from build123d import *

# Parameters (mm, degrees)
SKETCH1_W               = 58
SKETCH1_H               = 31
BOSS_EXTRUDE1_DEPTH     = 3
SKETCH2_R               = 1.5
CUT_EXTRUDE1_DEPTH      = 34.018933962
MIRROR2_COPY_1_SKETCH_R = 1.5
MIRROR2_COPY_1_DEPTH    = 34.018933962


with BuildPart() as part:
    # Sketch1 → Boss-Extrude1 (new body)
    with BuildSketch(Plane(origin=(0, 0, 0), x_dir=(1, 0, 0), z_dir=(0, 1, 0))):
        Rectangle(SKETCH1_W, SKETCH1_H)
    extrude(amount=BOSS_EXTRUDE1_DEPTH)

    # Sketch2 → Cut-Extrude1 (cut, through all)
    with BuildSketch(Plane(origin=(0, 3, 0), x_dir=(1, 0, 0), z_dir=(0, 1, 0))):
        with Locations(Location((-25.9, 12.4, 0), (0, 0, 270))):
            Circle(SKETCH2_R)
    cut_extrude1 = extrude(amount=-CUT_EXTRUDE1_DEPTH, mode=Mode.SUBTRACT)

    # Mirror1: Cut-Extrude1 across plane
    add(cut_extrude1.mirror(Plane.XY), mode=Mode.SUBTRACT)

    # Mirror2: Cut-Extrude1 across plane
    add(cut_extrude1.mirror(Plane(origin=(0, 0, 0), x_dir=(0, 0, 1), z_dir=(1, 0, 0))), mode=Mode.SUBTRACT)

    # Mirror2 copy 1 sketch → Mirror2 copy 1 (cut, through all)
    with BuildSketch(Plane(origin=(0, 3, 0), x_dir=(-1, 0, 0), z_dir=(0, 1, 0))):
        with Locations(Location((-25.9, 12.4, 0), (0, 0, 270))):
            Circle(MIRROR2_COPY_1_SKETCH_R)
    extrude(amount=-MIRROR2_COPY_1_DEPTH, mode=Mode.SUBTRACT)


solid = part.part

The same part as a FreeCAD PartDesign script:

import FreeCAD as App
import Part
import Sketcher

V = App.Vector

doc = App.newDocument("Part")
body = doc.addObject("PartDesign::Body", "Body")

sketch1 = body.newObject("Sketcher::SketchObject", "Sketch")
sketch1.AttachmentSupport = (doc.getObject("XZ_Plane"), [""])
sketch1.MapMode = "FlatFace"
sketch1.addGeometry(Part.LineSegment(V(-29, -16, 0), V(-29, 16, 0)), False)
sketch1.addGeometry(Part.LineSegment(V(-29, 16, 0), V(29, 16, 0)), False)
sketch1.addGeometry(Part.LineSegment(V(29, 16, 0), V(29, -16, 0)), False)
sketch1.addGeometry(Part.LineSegment(V(29, -16, 0), V(-29, -16, 0)), False)
sketch1.addConstraint(Sketcher.Constraint("Coincident", 0, 2, 1, 1))
sketch1.addConstraint(Sketcher.Constraint("Coincident", 1, 2, 2, 1))
sketch1.addConstraint(Sketcher.Constraint("Coincident", 2, 2, 3, 1))
sketch1.addConstraint(Sketcher.Constraint("Coincident", 3, 2, 0, 1))
sketch1.addConstraint(Sketcher.Constraint("Vertical", 0))
sketch1.addConstraint(Sketcher.Constraint("Horizontal", 1))
sketch1.addConstraint(Sketcher.Constraint("Vertical", 2))
sketch1.addConstraint(Sketcher.Constraint("Horizontal", 3))
sketch1.addConstraint(Sketcher.Constraint("Symmetric", 0, 2, 2, 2, -1, 1))
sketch1.addConstraint(Sketcher.Constraint("DistanceX", 1, 1, 1, 2, 58.0))
sketch1.addConstraint(Sketcher.Constraint("DistanceY", 0, 1, 0, 2, 31.0))
pad1 = body.newObject("PartDesign::Pad", "Pad")
pad1.Profile = sketch1
pad1.Length = 3
pad1.Reversed = True

sketch2 = body.newObject("Sketcher::SketchObject", "Sketch001")
sketch2.AttachmentSupport = (doc.getObject("XZ_Plane"), [""])
sketch2.MapMode = "FlatFace"
sketch2.AttachmentOffset = App.Placement(V(0, 0, -3), App.Rotation())
sketch2.addGeometry(Part.Circle(V(-25.9, -12.4, 0), V(0, 0, 1), 1.5), False)
sketch2.addConstraint(Sketcher.Constraint("Diameter", 0, 3.0))
sketch2.addConstraint(Sketcher.Constraint("DistanceX", 0, 3, -1, 1, 25.9))
sketch2.addConstraint(Sketcher.Constraint("DistanceY", 0, 3, -1, 1, 12.4))
pocket1 = body.newObject("PartDesign::Pocket", "Pocket")
pocket1.Profile = sketch2
pocket1.Type = "ThroughAll"
pocket1.Reversed = True
doc.recompute()

mirrored = body.newObject("PartDesign::Mirrored", "Mirrored")
mirrored.Originals = [pocket1]
mirrored.MirrorPlane = (doc.getObject("XY_Plane"), [""])
body.Tip = mirrored
doc.recompute()

mirrored2 = body.newObject("PartDesign::Mirrored", "Mirrored001")
mirrored2.Originals = [pocket1]
mirrored2.MirrorPlane = (doc.getObject("YZ_Plane"), [""])
body.Tip = mirrored2

sketch3 = body.newObject("Sketcher::SketchObject", "Sketch002")
sketch3.AttachmentSupport = (doc.getObject("XZ_Plane"), [""])
sketch3.MapMode = "FlatFace"
sketch3.AttachmentOffset = App.Placement(V(0, 0, -3), App.Rotation())
sketch3.addGeometry(Part.Circle(V(25.9, 12.4, 0), V(0, 0, 1), 1.5), False)
sketch3.addConstraint(Sketcher.Constraint("Diameter", 0, 3.0))
sketch3.addConstraint(Sketcher.Constraint("DistanceX", -1, 1, 0, 3, 25.9))
sketch3.addConstraint(Sketcher.Constraint("DistanceY", -1, 1, 0, 3, 12.4))
pocket2 = body.newObject("PartDesign::Pocket", "Pocket001")
pocket2.Profile = sketch3
pocket2.Type = "ThroughAll"
pocket2.Reversed = True

doc.recompute()
